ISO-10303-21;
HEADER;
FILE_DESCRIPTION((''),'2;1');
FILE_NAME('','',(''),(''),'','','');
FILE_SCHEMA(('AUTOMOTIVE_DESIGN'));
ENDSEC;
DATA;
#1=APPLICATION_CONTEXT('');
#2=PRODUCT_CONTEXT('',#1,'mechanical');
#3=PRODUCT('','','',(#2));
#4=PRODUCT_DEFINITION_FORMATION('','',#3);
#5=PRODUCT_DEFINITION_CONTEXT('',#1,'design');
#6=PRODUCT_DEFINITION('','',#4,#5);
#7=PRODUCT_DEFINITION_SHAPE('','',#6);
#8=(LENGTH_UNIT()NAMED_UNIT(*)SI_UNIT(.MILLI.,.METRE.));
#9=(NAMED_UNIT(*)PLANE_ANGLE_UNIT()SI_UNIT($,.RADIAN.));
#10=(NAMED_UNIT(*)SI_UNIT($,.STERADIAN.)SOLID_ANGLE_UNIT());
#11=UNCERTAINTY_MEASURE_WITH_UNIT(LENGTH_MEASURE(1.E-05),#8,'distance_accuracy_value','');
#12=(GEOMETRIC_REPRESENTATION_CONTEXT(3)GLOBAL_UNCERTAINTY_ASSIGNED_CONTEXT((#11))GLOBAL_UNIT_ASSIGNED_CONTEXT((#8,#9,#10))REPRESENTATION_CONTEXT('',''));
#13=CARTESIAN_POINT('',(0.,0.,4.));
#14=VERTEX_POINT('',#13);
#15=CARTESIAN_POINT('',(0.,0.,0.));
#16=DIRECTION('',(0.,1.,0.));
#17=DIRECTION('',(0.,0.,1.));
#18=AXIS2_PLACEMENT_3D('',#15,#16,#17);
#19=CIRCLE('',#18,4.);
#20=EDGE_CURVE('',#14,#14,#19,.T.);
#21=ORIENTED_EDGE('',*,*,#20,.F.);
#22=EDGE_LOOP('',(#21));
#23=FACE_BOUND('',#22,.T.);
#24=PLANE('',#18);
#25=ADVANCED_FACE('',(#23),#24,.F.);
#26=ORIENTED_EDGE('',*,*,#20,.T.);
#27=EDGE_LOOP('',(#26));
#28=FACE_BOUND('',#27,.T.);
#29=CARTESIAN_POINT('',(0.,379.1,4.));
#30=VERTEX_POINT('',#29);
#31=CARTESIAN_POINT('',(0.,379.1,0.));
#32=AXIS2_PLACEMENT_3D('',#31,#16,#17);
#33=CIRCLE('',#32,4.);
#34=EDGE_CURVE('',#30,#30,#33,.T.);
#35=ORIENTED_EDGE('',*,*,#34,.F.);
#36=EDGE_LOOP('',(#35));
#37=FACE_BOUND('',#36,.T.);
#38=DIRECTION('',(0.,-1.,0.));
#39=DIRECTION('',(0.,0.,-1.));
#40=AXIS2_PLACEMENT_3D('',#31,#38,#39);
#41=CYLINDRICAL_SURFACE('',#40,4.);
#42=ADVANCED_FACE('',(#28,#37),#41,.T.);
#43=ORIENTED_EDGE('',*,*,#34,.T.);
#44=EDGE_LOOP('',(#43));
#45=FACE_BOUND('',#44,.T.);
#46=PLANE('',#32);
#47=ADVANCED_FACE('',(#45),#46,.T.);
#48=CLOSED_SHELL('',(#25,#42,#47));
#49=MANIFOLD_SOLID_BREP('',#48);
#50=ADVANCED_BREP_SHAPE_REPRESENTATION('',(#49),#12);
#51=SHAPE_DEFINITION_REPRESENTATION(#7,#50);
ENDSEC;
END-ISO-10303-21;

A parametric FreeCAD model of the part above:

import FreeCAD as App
import Part
import Sketcher
Q = App.Units.Quantity

doc = App.newDocument("Part")
body = doc.addObject("PartDesign::Body", "Body")

sketch1 = body.newObject("Sketcher::SketchObject", "Sketch")
sketch1.AttachmentSupport = (doc.getObject("XZ_Plane"), [""])
sketch1.MapMode = "FlatFace"
sketch1.addGeometry(Part.Circle(App.Vector(0, 0, 0), App.Vector(0, 0, 1), 4), False)
sketch1.addConstraint(Sketcher.Constraint("Coincident", 0, 3, -1, 1))
sketch1.addConstraint(Sketcher.Constraint("Diameter", 0, Q("8 mm")))
pad1 = body.newObject("PartDesign::Pad", "Pad")
pad1.Profile = sketch1
pad1.Length = 379.1
pad1.Reversed = True

doc.recompute()
